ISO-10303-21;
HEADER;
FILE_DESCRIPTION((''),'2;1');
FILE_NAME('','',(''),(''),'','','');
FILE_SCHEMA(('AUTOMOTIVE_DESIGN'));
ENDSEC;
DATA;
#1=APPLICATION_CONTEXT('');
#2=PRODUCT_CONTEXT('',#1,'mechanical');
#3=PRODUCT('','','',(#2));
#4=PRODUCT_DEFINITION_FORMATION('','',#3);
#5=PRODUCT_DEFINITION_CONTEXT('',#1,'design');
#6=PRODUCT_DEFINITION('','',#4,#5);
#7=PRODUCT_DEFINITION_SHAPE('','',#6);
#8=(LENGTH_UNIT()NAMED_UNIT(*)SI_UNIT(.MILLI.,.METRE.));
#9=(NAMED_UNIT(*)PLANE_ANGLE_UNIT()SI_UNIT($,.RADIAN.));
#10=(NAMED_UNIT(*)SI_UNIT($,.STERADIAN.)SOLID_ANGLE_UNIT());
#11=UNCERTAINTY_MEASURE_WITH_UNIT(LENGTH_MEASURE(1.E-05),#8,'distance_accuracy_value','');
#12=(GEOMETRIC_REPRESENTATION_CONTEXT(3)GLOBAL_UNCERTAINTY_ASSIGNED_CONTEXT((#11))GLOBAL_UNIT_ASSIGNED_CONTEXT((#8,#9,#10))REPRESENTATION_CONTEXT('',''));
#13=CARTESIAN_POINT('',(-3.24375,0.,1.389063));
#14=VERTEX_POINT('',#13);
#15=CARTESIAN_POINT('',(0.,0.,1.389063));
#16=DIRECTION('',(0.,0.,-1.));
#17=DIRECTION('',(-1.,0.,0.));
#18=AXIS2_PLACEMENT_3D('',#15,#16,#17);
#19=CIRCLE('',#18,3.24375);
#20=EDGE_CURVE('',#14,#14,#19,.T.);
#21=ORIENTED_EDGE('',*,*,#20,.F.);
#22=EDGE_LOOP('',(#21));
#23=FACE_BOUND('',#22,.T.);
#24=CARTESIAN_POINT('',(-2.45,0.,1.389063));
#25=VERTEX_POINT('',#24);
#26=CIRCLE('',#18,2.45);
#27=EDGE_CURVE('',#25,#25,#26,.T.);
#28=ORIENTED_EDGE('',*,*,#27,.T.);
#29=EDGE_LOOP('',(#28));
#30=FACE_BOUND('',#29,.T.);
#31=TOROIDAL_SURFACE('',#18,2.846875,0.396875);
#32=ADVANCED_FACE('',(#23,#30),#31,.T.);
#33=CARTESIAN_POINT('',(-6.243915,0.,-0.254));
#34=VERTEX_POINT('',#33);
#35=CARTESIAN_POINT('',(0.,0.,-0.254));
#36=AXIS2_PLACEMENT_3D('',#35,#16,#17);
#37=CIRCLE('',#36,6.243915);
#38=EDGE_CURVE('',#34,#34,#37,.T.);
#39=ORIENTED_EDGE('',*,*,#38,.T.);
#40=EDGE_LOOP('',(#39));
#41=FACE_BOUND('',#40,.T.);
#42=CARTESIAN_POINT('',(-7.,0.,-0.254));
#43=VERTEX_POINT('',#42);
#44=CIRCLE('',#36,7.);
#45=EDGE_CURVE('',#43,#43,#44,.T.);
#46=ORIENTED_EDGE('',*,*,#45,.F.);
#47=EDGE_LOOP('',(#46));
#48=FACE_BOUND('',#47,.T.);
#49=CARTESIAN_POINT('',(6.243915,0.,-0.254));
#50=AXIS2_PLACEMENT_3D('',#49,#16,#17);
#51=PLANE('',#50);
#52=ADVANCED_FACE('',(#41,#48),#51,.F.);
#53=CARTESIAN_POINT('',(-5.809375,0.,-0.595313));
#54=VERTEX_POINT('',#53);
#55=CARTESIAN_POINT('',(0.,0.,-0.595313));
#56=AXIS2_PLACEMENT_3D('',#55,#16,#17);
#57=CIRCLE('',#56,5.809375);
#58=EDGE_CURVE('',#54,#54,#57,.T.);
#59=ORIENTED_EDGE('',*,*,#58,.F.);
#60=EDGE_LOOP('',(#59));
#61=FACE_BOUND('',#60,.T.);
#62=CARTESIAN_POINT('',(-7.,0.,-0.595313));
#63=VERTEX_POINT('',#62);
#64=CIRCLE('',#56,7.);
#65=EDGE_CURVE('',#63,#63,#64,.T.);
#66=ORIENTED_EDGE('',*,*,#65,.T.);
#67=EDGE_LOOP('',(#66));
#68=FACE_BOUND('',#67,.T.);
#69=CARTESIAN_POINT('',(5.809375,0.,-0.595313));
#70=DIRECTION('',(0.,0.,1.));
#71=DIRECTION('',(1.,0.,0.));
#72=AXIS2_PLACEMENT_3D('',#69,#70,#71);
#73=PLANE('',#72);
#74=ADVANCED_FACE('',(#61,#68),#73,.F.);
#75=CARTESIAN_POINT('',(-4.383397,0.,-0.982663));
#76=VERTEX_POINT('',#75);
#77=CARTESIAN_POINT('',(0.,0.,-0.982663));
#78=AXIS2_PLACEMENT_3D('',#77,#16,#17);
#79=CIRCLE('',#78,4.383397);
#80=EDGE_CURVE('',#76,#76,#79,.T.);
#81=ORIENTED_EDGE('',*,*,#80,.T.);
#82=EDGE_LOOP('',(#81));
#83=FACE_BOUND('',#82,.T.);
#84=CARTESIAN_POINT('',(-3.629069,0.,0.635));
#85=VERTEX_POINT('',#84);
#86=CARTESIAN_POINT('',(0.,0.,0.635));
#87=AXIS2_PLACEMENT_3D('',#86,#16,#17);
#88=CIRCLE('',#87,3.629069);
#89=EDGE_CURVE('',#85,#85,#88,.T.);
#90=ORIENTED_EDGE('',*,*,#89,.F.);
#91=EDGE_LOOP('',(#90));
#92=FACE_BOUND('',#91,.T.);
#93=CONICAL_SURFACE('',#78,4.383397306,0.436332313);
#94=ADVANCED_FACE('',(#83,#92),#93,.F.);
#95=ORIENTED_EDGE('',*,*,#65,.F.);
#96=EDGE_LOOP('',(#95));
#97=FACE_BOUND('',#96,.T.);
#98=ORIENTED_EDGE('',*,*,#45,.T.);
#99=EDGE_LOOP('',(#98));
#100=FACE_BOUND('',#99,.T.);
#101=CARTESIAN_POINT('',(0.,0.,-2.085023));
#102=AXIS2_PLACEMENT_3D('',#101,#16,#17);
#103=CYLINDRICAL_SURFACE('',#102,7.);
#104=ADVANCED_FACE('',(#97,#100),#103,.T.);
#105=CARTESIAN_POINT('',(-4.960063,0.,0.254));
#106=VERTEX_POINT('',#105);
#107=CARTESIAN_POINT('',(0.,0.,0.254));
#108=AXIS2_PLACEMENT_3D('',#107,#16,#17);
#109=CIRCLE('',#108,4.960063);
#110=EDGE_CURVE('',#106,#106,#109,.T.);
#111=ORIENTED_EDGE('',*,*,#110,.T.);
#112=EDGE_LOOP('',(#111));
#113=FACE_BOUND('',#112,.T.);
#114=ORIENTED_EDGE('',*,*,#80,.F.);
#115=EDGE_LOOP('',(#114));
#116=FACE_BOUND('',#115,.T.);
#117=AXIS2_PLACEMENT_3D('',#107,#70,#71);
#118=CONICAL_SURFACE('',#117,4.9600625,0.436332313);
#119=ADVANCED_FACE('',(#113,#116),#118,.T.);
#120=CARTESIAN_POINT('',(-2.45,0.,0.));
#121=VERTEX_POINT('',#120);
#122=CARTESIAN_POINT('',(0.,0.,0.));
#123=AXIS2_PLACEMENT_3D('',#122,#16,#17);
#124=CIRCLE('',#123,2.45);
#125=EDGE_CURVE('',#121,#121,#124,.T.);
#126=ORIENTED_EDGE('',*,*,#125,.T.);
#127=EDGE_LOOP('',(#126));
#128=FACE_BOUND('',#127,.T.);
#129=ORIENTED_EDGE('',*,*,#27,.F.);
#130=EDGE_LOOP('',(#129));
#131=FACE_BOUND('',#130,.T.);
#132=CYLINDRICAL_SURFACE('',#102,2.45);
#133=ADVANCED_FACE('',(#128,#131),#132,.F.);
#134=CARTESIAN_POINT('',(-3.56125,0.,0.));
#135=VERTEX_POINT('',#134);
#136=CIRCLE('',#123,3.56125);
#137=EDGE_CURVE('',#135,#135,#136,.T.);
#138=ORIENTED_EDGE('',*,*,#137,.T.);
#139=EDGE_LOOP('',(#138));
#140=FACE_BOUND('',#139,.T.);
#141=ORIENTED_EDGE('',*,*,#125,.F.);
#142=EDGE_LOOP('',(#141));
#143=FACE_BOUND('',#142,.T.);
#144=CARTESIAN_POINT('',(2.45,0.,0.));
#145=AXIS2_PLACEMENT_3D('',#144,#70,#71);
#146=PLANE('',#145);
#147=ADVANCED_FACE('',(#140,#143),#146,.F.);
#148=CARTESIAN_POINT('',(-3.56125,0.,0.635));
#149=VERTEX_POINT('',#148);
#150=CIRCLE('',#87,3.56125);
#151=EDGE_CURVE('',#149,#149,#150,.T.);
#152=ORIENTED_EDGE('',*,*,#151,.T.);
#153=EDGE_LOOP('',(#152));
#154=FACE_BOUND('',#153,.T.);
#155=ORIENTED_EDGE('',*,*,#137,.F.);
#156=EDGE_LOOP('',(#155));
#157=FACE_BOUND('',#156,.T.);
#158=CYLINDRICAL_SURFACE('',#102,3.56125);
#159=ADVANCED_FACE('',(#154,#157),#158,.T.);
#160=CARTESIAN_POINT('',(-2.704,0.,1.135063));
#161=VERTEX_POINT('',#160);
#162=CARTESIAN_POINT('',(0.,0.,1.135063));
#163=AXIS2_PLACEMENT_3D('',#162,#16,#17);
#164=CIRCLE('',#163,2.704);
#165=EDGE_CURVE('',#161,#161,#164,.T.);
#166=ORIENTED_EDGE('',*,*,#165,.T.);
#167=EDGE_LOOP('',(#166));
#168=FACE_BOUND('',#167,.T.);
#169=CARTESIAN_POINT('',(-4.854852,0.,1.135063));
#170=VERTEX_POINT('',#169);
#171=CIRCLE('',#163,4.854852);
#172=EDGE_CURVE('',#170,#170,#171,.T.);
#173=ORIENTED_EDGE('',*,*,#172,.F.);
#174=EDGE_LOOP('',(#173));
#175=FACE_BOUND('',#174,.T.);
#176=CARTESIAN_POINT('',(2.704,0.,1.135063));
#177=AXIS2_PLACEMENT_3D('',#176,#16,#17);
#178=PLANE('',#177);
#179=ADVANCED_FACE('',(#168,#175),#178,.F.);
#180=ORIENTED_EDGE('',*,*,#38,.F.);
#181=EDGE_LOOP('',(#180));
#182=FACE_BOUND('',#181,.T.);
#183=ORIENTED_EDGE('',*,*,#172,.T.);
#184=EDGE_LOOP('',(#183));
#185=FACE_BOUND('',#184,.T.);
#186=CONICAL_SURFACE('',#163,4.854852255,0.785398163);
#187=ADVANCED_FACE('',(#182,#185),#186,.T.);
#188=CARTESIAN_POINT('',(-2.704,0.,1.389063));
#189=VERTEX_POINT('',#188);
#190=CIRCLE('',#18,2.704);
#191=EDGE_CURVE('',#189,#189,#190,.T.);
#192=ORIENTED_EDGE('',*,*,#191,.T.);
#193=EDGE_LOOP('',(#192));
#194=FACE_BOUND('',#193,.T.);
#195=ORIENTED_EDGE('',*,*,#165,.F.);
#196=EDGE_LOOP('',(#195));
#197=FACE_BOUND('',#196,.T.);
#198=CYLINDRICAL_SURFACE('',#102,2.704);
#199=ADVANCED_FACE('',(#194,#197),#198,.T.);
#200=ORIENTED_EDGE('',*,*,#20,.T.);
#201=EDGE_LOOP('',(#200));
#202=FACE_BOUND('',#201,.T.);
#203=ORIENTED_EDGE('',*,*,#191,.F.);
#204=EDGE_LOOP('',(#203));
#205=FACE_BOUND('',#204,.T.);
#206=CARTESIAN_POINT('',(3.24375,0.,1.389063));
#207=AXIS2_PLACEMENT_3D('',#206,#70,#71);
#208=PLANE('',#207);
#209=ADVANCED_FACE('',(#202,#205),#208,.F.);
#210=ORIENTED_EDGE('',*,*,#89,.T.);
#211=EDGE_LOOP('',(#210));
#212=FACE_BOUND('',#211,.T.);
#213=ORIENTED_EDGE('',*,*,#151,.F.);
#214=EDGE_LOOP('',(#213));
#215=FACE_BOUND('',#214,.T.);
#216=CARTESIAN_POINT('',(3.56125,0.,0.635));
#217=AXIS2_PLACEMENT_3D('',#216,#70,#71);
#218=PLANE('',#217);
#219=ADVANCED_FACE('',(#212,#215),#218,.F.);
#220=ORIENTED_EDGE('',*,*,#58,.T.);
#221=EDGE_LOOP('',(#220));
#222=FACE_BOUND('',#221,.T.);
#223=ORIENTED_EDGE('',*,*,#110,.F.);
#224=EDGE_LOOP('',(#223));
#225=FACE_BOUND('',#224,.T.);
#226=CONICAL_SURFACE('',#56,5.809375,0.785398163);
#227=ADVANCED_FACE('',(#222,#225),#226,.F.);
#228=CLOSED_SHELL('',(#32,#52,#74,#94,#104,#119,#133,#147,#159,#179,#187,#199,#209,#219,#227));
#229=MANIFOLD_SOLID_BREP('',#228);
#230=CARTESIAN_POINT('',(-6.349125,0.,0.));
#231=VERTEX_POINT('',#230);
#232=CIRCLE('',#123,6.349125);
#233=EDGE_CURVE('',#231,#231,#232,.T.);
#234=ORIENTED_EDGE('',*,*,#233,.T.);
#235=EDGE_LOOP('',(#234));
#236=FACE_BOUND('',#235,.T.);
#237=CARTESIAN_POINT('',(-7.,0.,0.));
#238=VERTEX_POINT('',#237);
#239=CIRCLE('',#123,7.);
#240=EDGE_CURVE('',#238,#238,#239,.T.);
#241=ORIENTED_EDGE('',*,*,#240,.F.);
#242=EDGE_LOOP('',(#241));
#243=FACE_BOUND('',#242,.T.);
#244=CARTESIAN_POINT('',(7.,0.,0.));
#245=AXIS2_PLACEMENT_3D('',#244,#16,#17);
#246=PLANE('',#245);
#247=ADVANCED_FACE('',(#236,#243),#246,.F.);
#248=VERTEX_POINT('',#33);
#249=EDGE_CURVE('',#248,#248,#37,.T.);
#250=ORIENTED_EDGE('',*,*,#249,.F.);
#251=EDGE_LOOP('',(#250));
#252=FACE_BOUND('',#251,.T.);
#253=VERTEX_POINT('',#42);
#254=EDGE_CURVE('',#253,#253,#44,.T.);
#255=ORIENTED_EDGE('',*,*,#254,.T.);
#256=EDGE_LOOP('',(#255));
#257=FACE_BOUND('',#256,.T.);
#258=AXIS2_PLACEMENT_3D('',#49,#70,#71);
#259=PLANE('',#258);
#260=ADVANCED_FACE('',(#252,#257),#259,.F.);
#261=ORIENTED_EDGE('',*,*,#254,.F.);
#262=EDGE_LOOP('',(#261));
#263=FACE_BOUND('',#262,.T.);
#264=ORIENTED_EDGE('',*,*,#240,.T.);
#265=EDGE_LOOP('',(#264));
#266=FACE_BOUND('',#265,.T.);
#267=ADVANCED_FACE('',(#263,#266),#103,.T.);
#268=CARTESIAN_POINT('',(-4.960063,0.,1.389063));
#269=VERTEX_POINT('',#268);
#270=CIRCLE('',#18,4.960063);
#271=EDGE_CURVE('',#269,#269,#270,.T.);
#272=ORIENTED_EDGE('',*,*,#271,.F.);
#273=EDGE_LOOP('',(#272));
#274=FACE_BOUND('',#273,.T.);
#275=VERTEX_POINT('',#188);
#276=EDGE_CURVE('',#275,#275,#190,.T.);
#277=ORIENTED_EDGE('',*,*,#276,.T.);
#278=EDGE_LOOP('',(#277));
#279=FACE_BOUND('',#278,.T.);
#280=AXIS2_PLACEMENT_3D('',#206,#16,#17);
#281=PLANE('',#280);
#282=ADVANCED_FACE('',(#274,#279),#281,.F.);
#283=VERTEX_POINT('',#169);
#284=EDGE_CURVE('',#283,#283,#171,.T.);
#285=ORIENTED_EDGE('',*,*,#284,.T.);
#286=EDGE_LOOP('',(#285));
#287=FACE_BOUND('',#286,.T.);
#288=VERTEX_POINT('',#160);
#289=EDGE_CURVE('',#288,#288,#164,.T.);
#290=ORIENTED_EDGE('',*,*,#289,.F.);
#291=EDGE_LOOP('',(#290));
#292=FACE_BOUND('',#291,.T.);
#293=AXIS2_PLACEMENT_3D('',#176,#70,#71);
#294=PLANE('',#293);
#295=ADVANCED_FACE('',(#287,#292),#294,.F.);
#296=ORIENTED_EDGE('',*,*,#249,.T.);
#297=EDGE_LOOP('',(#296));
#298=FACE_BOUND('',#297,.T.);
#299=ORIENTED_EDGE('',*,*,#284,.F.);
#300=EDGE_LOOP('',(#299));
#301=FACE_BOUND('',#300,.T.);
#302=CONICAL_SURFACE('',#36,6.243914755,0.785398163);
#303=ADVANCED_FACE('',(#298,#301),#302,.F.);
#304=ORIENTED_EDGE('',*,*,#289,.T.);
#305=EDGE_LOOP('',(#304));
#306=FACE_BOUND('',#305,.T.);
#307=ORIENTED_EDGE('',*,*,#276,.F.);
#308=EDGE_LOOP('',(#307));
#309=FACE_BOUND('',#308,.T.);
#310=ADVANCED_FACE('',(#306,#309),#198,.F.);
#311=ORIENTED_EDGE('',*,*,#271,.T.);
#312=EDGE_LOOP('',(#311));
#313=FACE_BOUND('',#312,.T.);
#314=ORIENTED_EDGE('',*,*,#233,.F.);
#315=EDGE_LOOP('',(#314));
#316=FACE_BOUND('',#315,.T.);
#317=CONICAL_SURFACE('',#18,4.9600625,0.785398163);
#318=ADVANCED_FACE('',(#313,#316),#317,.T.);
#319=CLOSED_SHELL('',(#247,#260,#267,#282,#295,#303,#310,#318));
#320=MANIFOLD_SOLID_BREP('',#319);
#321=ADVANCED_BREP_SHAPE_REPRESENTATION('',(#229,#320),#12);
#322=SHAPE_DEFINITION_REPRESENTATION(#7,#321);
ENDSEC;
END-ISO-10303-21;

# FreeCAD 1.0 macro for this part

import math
import FreeCAD as App
import Part
import Sketcher
from FreeCAD import Vector
Q = App.Units.Quantity


def add_polygon(sketch, points):
    """Adds a closed chain of lines whose ends are joined by coincident constraints."""
    first, n = sketch.GeometryCount, len(points)
    for a, b in zip(points, points[1:] + points[:1]):
        sketch.addGeometry(Part.LineSegment(App.Vector(*a, 0), App.Vector(*b, 0)), False)
    for i in range(n):
        sketch.addConstraint(Sketcher.Constraint("Coincident", first + i, 2, first + (i + 1) % n, 1))

doc = App.newDocument("Part")
params = doc.addObject("Spreadsheet::Sheet", "Params")
for row, (alias, value) in enumerate([
    ("sketch1_height", "0.01 in"),
    ("revolution_angle", "360 deg"),
    ("sketch2_radius", "0.015625 in"),
    ("sketch2_height", "0.01 in"),
    ("sketch2_width", "0.046875 in"),
    ("sketch2_height2", "0.025 in"),
    ("revolution2_angle", "360 deg"),
], start=1):
    params.set(f"A{row}", alias)
    params.set(f"B{row}", "=" + value)
    params.setAlias(f"B{row}", alias)

body = doc.addObject("PartDesign::Body", "Body")

sketch1 = body.newObject("Sketcher::SketchObject", "Sketch")
sketch1.AttachmentSupport = (doc.getObject("XZ_Plane"), [""])
sketch1.MapMode = "FlatFace"
add_polygon(sketch1, [(2.704, 1.389063), (4.960063, 1.389063), (6.349125, 0), (7, 0), (7, -0.254), (6.243915, -0.254), (4.854852, 1.135063), (2.704, 1.135063)])
sketch1.addConstraint([
    Sketcher.Constraint("Horizontal", 0),
    Sketcher.Constraint("Horizontal", 2),
    Sketcher.Constraint("Vertical", 3),
    Sketcher.Constraint("Horizontal", 4),
    Sketcher.Constraint("Horizontal", 6),
    Sketcher.Constraint("Vertical", 7),
    Sketcher.Constraint("PointOnObject", 1, 2, -1),
    Sketcher.Constraint("Parallel", 1, 5),
    Sketcher.Constraint("Equal", 3, 7),
    Sketcher.Constraint("Angle", 1, Q("-45 deg")),
    Sketcher.Constraint("DistanceY", 3, 2, 3, 1, Q("0.01 in")),
    Sketcher.Constraint("DistanceX", -1, 1, 2, 2, Q("7 mm")),
    Sketcher.Constraint("DistanceX", -1, 1, 6, 2, Q("2.704 mm")),
    Sketcher.Constraint("Distance", 1, Q("1.964431 mm")),
    Sketcher.Constraint("DistanceX", 0, 1, 0, 2, Q("2.256063 mm")),
    Sketcher.Constraint("DistanceX", 4, 2, 4, 1, Q("0.756085 mm")),
])
sketch1.setExpression("Constraints[18]", "Params.sketch1_height")
revolution = body.newObject("PartDesign::Revolution", "Revolution")
revolution.Profile = sketch1
revolution.ReferenceAxis = (sketch1, ["V_Axis"])
revolution.setExpression("Angle", "Params.revolution_angle")
body2 = doc.addObject("PartDesign::Body", "Body001")

sketch2 = body2.newObject("Sketcher::SketchObject", "Sketch001")
sketch2.AttachmentSupport = (doc.getObject("XZ_Plane001"), [""])
sketch2.MapMode = "FlatFace"
sketch2.addGeometry([
    Part.LineSegment(Vector(2.45, 0, 0), Vector(2.45, 1.389063, 0)),
    Part.ArcOfCircle(Part.Circle(Vector(2.846875, 1.389063, 0), Vector(0, 0, 1), 0.396875), math.radians(0), math.radians(180)),
    Part.LineSegment(Vector(3.24375, 1.389063, 0), Vector(2.704, 1.389063, 0)),
    Part.LineSegment(Vector(2.704, 1.389063, 0), Vector(2.704, 1.135063, 0)),
    Part.LineSegment(Vector(2.704, 1.135063, 0), Vector(4.854852, 1.135063, 0)),
    Part.LineSegment(Vector(4.854852, 1.135063, 0), Vector(6.243915, -0.254, 0)),
    Part.LineSegment(Vector(6.243915, -0.254, 0), Vector(7, -0.254, 0)),
    Part.LineSegment(Vector(7, -0.254, 0), Vector(7, -0.595313, 0)),
    Part.LineSegment(Vector(7, -0.595313, 0), Vector(5.809375, -0.595313, 0)),
    Part.LineSegment(Vector(5.809375, -0.595313, 0), Vector(4.960063, 0.254, 0)),
    Part.LineSegment(Vector(4.960063, 0.254, 0), Vector(4.383397, -0.982662, 0)),
    Part.LineSegment(Vector(4.383397, -0.982662, 0), Vector(3.629069, 0.635, 0)),
    Part.LineSegment(Vector(3.629069, 0.635, 0), Vector(3.56125, 0.635, 0)),
    Part.LineSegment(Vector(3.56125, 0.635, 0), Vector(3.56125, 0, 0)),
    Part.LineSegment(Vector(3.56125, 0, 0), Vector(2.45, 0, 0)),
], False)
sketch2.addConstraint([
    Sketcher.Constraint("Tangent", 0, 2, 1, 2),
    Sketcher.Constraint("Coincident", 1, 1, 2, 1),
    Sketcher.Constraint("Coincident", 2, 2, 3, 1),
    Sketcher.Constraint("Coincident", 3, 2, 4, 1),
    Sketcher.Constraint("Coincident", 4, 2, 5, 1),
    Sketcher.Constraint("Coincident", 5, 2, 6, 1),
    Sketcher.Constraint("Coincident", 6, 2, 7, 1),
    Sketcher.Constraint("Coincident", 7, 2, 8, 1),
    Sketcher.Constraint("Coincident", 8, 2, 9, 1),
    Sketcher.Constraint("Coincident", 9, 2, 10, 1),
    Sketcher.Constraint("Coincident", 10, 2, 11, 1),
    Sketcher.Constraint("Coincident", 11, 2, 12, 1),
    Sketcher.Constraint("Coincident", 12, 2, 13, 1),
    Sketcher.Constraint("Coincident", 13, 2, 14, 1),
    Sketcher.Constraint("Coincident", 14, 2, 0, 1),
    Sketcher.Constraint("Vertical", 0),
    Sketcher.Constraint("Horizontal", 2),
    Sketcher.Constraint("Vertical", 3),
    Sketcher.Constraint("Horizontal", 4),
    Sketcher.Constraint("Horizontal", 6),
    Sketcher.Constraint("Vertical", 7),
    Sketcher.Constraint("Horizontal", 8),
    Sketcher.Constraint("Horizontal", 12),
    Sketcher.Constraint("Vertical", 13),
    Sketcher.Constraint("Horizontal", 14),
    Sketcher.Constraint("PointOnObject", 13, 2, -1),
    Sketcher.Constraint("Parallel", 5, 9),
    Sketcher.Constraint("Horizontal", 0, 2, 1, 1),
    Sketcher.Constraint("Angle", 5, Q("-45 deg")),
    Sketcher.Constraint("Angle", 10, Q("-115 deg")),
    Sketcher.Constraint("Angle", 11, Q("115 deg")),
    Sketcher.Constraint("Radius", 1, Q("0.015625 in")),
    Sketcher.Constraint("DistanceY", 3, 2, 3, 1, Q("0.01 in")),
    Sketcher.Constraint("DistanceX", 8, 2, 8, 1, Q("0.046875 in")),
    Sketcher.Constraint("DistanceY", 13, 2, 13, 1, Q("0.025 in")),
    Sketcher.Constraint("DistanceY", 5, 2, -1, 1, Q("0.01 in")),
    Sketcher.Constraint("DistanceY", -1, 1, 9, 2, Q("0.01 in")),
    Sketcher.Constraint("DistanceX", 0, 2, 2, 2, Q("0.01 in")),
    Sketcher.Constraint("DistanceY", 7, 2, 1, 1, Q("0.078125 in")),
    Sketcher.Constraint("DistanceX", 1, 1, 12, 2, Q("0.0125 in")),
    Sketcher.Constraint("DistanceX", 12, 2, 12, 1, Q("0.067819 mm")),
    Sketcher.Constraint("DistanceX", -1, 1, 0, 2, Q("2.45 mm")),
    Sketcher.Constraint("DistanceX", -1, 1, 6, 2, Q("7 mm")),
    Sketcher.Constraint("Distance", 5, Q("1.964431 mm")),
    Sketcher.Constraint("DistanceX", 4, 1, 4, 2, Q("2.150852 mm")),
])
sketch2.setExpression("Constraints[31]", "Params.sketch2_radius")
sketch2.setExpression("Constraints[32]", "Params.sketch2_height")
sketch2.setExpression("Constraints[33]", "Params.sketch2_width")
sketch2.setExpression("Constraints[34]", "Params.sketch2_height2")
revolution2 = body2.newObject("PartDesign::Revolution", "Revolution001")
revolution2.Profile = sketch2
revolution2.ReferenceAxis = (sketch2, ["V_Axis"])
revolution2.setExpression("Angle", "Params.revolution2_angle")

doc.recompute()
